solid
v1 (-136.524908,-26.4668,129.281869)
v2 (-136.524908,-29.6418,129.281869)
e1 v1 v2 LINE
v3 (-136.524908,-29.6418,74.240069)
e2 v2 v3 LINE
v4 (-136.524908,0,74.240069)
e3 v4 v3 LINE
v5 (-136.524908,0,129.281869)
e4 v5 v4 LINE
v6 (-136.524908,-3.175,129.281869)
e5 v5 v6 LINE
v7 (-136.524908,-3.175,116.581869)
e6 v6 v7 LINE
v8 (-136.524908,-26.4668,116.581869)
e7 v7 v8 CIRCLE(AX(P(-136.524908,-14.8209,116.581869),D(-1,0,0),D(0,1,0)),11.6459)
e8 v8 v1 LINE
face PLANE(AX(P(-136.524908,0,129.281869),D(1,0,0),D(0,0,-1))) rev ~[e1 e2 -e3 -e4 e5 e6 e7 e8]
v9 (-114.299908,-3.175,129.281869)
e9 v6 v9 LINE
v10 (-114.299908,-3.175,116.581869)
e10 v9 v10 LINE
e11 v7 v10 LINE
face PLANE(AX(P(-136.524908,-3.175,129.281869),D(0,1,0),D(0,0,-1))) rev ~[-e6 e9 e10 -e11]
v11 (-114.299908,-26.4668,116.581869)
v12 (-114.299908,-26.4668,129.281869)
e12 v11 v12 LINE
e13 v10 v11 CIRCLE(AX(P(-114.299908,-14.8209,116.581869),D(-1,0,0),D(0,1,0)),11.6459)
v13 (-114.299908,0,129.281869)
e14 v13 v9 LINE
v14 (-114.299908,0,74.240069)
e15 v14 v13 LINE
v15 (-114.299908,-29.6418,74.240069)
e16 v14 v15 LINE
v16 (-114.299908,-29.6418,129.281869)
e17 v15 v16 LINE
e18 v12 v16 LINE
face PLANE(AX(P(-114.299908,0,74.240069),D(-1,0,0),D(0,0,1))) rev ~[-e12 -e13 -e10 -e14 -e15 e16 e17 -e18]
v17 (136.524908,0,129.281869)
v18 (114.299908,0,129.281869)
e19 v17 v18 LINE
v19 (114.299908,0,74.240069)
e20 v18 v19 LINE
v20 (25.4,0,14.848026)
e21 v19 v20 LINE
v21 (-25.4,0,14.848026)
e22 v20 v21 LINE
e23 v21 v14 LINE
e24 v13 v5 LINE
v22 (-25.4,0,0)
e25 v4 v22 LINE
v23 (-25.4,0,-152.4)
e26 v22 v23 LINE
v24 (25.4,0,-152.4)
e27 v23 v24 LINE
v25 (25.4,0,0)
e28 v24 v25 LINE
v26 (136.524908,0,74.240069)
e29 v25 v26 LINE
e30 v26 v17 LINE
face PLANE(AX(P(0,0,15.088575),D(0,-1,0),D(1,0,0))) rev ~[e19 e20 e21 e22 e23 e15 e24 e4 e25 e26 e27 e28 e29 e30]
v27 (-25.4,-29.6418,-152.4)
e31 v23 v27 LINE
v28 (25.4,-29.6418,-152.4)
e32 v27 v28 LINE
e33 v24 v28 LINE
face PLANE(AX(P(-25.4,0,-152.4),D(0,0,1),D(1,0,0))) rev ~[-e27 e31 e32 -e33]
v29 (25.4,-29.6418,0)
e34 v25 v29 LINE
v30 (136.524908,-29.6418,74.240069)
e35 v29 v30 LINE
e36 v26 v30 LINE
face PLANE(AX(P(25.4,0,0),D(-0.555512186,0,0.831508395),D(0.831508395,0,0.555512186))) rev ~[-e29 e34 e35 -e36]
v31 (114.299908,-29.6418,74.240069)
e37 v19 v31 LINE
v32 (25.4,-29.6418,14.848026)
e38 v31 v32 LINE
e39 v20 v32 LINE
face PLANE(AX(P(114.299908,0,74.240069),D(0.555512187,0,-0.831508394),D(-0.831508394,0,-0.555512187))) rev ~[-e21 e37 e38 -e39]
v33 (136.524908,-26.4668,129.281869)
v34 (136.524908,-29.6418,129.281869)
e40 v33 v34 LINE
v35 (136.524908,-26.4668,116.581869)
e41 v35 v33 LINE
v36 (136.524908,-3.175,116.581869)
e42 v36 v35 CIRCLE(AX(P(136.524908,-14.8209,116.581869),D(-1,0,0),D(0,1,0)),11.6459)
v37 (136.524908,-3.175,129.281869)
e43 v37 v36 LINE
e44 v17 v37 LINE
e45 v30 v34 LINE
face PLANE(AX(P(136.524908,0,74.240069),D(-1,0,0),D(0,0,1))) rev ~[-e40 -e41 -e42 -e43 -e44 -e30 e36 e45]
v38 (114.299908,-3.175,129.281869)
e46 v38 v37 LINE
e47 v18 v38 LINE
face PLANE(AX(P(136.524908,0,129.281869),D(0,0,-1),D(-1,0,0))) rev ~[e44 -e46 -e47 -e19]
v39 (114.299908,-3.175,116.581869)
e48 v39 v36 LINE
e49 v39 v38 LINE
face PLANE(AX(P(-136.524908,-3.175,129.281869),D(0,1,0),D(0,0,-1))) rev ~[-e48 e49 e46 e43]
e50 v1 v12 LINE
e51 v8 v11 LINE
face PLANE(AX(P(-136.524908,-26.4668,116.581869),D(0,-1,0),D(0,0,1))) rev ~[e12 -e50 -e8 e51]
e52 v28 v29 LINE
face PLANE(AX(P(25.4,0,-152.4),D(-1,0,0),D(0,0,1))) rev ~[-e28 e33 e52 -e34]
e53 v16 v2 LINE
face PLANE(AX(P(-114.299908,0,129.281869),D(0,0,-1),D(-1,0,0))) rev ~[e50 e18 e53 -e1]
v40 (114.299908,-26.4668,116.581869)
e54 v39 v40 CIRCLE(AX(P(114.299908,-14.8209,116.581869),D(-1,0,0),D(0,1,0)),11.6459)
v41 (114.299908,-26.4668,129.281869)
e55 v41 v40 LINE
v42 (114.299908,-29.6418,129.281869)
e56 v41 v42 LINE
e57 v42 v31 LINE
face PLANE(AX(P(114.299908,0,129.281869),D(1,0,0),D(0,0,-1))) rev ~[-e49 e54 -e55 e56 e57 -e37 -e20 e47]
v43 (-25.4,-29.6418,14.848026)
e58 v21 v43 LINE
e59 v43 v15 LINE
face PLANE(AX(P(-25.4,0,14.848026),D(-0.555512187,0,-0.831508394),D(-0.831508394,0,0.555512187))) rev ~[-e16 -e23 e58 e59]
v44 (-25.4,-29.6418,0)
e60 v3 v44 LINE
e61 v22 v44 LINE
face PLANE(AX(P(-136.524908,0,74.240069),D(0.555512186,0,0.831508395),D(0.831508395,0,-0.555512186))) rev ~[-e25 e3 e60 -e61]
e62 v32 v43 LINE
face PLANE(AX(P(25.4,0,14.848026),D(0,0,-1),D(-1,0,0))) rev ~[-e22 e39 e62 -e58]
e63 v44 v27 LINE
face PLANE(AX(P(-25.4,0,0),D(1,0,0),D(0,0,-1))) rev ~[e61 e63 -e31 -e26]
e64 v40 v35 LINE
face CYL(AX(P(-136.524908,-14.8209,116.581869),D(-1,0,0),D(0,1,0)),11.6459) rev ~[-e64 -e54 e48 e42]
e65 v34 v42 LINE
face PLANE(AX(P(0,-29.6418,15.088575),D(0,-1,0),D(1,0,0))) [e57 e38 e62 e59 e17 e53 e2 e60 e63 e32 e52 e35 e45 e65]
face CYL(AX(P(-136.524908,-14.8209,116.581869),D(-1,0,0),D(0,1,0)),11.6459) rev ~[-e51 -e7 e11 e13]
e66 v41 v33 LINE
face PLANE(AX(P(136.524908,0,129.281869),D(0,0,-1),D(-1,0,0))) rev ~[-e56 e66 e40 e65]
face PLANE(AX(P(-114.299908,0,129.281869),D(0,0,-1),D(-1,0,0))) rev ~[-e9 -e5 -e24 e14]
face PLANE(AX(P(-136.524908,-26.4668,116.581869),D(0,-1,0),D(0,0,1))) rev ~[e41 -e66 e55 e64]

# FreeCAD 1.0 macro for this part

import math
import FreeCAD as App
import Part
import Sketcher
Q = App.Units.Quantity


def add_polygon(sketch, points):
    """Adds a closed chain of lines whose ends are joined by coincident constraints."""
    first, n = sketch.GeometryCount, len(points)
    for a, b in zip(points, points[1:] + points[:1]):
        sketch.addGeometry(Part.LineSegment(App.Vector(*a, 0), App.Vector(*b, 0)), False)
    for i in range(n):
        sketch.addConstraint(Sketcher.Constraint("Coincident", first + i, 2, first + (i + 1) % n, 1))

doc = App.newDocument("Part")
body = doc.addObject("PartDesign::Body", "Body")

# Sketch on XZ plane
sketch1 = doc.addObject("Sketcher::SketchObject", "Sketch")
body.addObject(sketch1)
sketch1.AttachmentSupport = (doc.XZ_Plane, [""])
sketch1.MapMode = "FlatFace"
add_polygon(sketch1, [(-25, 0), (-25, -152), (25, -152), (25, 0), (137, 74), (137, 129), (114, 129), (114, 74), (25, 15), (-25, 15), (-114, 74), (-114, 129), (-137, 129), (-137, 74)])  # lines 0-13
sketch1.addConstraint(Sketcher.Constraint("Vertical", 0))
sketch1.addConstraint(Sketcher.Constraint("Horizontal", 1))
sketch1.addConstraint(Sketcher.Constraint("Vertical", 2))
sketch1.addConstraint(Sketcher.Constraint("Vertical", 4))
sketch1.addConstraint(Sketcher.Constraint("Horizontal", 5))
sketch1.addConstraint(Sketcher.Constraint("Vertical", 6))
sketch1.addConstraint(Sketcher.Constraint("Horizontal", 8))
sketch1.addConstraint(Sketcher.Constraint("Vertical", 10))
sketch1.addConstraint(Sketcher.Constraint("Horizontal", 11))
sketch1.addConstraint(Sketcher.Constraint("Vertical", 12))
sketch1.addConstraint(Sketcher.Constraint("Symmetric", 2, 2, 13, 2, -1, 1))
sketch1.addConstraint(Sketcher.Constraint("Symmetric", 6, 2, 9, 2, -2))
sketch1.addConstraint(Sketcher.Constraint("Symmetric", 4, 2, 11, 2, -2))
sketch1.addConstraint(Sketcher.Constraint("PointOnObject", 2, 2, -1))
sketch1.addConstraint(Sketcher.Constraint("Parallel", 3, 7))
sketch1.addConstraint(Sketcher.Constraint("Parallel", 9, 13))
sketch1.addConstraint(Sketcher.Constraint("Horizontal", 3, 2, 6, 2))
sketch1.addConstraint(Sketcher.Constraint("Horizontal", 9, 2, 12, 2))
sketch1.addConstraint(Sketcher.Constraint("Vertical", 2, 2, 7, 2))
sketch1.addConstraint(Sketcher.Constraint("DistanceX", 1, 1, 1, 2, Q("2 in")))
sketch1.addConstraint(Sketcher.Constraint("DistanceY", 0, 2, 0, 1, Q("6 in")))
sketch1.addConstraint(Sketcher.Constraint("DistanceX", 5, 2, 5, 1, Q("0.875 in")))
sketch1.addConstraint(Sketcher.Constraint("DistanceY", 4, 1, 4, 2, Q("2.167 in")))
sketch1.addConstraint(Sketcher.Constraint("DistanceX", -1, 1, 3, 2, 136.524908))
sketch1.addConstraint(Sketcher.Constraint("DistanceY", -1, 1, 3, 2, 74.240069))
pad1 = doc.addObject("PartDesign::Pad", "Pad")
body.addObject(pad1)
pad1.Profile = sketch1
pad1.Length = Q("1.167 in")

# Sketch on YZ plane
sketch2 = doc.addObject("Sketcher::SketchObject", "Sketch001")
body.addObject(sketch2)
sketch2.AttachmentSupport = (doc.YZ_Plane, [""])
sketch2.MapMode = "FlatFace"
sketch2.AttachmentOffset = App.Placement(App.Vector(0, 0, -136.524908), App.Rotation())
sketch2.addGeometry(Part.LineSegment(App.Vector(-26, 129, 0), App.Vector(-3, 129, 0)), False)
sketch2.addGeometry(Part.LineSegment(App.Vector(-3, 129, 0), App.Vector(-3, 117, 0)), False)
sketch2.addGeometry(Part.ArcOfCircle(Part.Circle(App.Vector(-15, 117, 0), App.Vector(0, 0, 1), 12), math.radians(180), math.radians(360)), False)
sketch2.addGeometry(Part.LineSegment(App.Vector(-26, 117, 0), App.Vector(-26, 129, 0)), False)
sketch2.addConstraint(Sketcher.Constraint("Coincident", 0, 2, 1, 1))
sketch2.addConstraint(Sketcher.Constraint("Tangent", 1, 2, 2, 2))
sketch2.addConstraint(Sketcher.Constraint("Tangent", 2, 1, 3, 1))
sketch2.addConstraint(Sketcher.Constraint("Coincident", 3, 2, 0, 1))
sketch2.addConstraint(Sketcher.Constraint("Horizontal", 0))
sketch2.addConstraint(Sketcher.Constraint("Vertical", 1))
sketch2.addConstraint(Sketcher.Constraint("Vertical", 3))
sketch2.addConstraint(Sketcher.Constraint("DistanceY", 1, 2, 1, 1, Q("0.5 in")))
sketch2.addConstraint(Sketcher.Constraint("Radius", 2, Q("0.4585 in")))
sketch2.addConstraint(Sketcher.Constraint("DistanceX", 0, 2, -1, 1, Q("0.125 in")))
sketch2.addConstraint(Sketcher.Constraint("DistanceY", -1, 1, 2, 3, 116.581869))
pocket1 = doc.addObject("PartDesign::Pocket", "Pocket")
body.addObject(pocket1)
pocket1.Profile = sketch2
pocket1.Type = "ThroughAll"
pocket1.Reversed = True

doc.recompute()
